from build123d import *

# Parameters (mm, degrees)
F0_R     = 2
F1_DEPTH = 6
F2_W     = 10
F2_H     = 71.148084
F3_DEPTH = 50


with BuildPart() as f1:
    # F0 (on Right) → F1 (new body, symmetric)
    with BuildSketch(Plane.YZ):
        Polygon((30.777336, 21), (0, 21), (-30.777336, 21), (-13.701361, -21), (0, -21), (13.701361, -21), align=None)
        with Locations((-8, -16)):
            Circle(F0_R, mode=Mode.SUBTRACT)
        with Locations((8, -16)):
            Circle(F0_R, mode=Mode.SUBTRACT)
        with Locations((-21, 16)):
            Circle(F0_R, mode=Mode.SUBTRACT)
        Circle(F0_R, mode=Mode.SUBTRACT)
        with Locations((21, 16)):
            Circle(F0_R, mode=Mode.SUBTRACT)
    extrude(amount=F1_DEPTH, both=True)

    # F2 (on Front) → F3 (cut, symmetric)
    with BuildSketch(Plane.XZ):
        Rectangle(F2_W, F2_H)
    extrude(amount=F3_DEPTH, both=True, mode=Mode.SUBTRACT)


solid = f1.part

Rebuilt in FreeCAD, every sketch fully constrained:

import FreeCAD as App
import Part
import Sketcher

V = App.Vector

doc = App.newDocument("Part")
body = doc.addObject("PartDesign::Body", "Body")
body.AllowCompound = True

# Sketch on YZ plane
sketch1 = doc.addObject("Sketcher::SketchObject", "Sketch")
body.addObject(sketch1)
sketch1.AttachmentSupport = (doc.YZ_Plane, [""])
sketch1.MapMode = "FlatFace"
sketch1.addGeometry(Part.LineSegment(V(30.8, 21, 0), V(-30.8, 21, 0)), False)
sketch1.addGeometry(Part.LineSegment(V(-30.8, 21, 0), V(-13.7, -21, 0)), False)
sketch1.addGeometry(Part.LineSegment(V(-13.7, -21, 0), V(13.7, -21, 0)), False)
sketch1.addGeometry(Part.LineSegment(V(13.7, -21, 0), V(30.8, 21, 0)), False)
sketch1.addGeometry(Part.Circle(V(-8, -16, 0), V(0, 0, 1), 2), False)
sketch1.addGeometry(Part.Circle(V(8, -16, 0), V(0, 0, 1), 2), False)
sketch1.addGeometry(Part.Circle(V(-21, 16, 0), V(0, 0, 1), 2), False)
sketch1.addGeometry(Part.Circle(V(0, 0, 0), V(0, 0, 1), 2), False)
sketch1.addGeometry(Part.Circle(V(21, 16, 0), V(0, 0, 1), 2), False)
sketch1.addConstraint(Sketcher.Constraint("Coincident", 0, 2, 1, 1))
sketch1.addConstraint(Sketcher.Constraint("Coincident", 1, 2, 2, 1))
sketch1.addConstraint(Sketcher.Constraint("Coincident", 2, 2, 3, 1))
sketch1.addConstraint(Sketcher.Constraint("Coincident", 3, 2, 0, 1))
sketch1.addConstraint(Sketcher.Constraint("Horizontal", 0))
sketch1.addConstraint(Sketcher.Constraint("Horizontal", 2))
sketch1.addConstraint(Sketcher.Constraint("Coincident", 7, 3, -1, 1))
sketch1.addConstraint(Sketcher.Constraint("Equal", 4, 5))
sketch1.addConstraint(Sketcher.Constraint("Equal", 5, 6))
sketch1.addConstraint(Sketcher.Constraint("Equal", 6, 7))
sketch1.addConstraint(Sketcher.Constraint("Equal", 7, 8))
sketch1.addConstraint(Sketcher.Constraint("Symmetric", 4, 3, 5, 3, -2))
sketch1.addConstraint(Sketcher.Constraint("Symmetric", 6, 3, 8, 3, -2))
sketch1.addConstraint(Sketcher.Constraint("Equal", 1, 3))
sketch1.addConstraint(Sketcher.Constraint("Diameter", 4, 4.0))
sketch1.addConstraint(Sketcher.Constraint("DistanceX", 4, 3, -1, 1, 8.0))
sketch1.addConstraint(Sketcher.Constraint("DistanceY", 4, 3, -1, 1, 16.0))
sketch1.addConstraint(Sketcher.Constraint("DistanceX", 6, 3, -1, 1, 21.0))
sketch1.addConstraint(Sketcher.Constraint("DistanceY", -1, 1, 6, 3, 16.0))
sketch1.addConstraint(Sketcher.Constraint("DistanceY", -1, 1, 0, 2, 21.0))
sketch1.addConstraint(Sketcher.Constraint("DistanceY", 1, 2, -1, 1, 21.0))
sketch1.addConstraint(Sketcher.Constraint("DistanceX", 0, 2, 0, 1, 61.554672))
sketch1.addConstraint(Sketcher.Constraint("DistanceX", 2, 1, 2, 2, 27.402722))
sketch1.addConstraint(Sketcher.Constraint("DistanceX", 1, 2, -1, 1, 13.701361))
pad1 = doc.addObject("PartDesign::Pad", "Pad")
body.addObject(pad1)
pad1.Profile = sketch1
pad1.Length = 12
pad1.Midplane = True

# Sketch on XZ plane
sketch2 = doc.addObject("Sketcher::SketchObject", "Sketch001")
body.addObject(sketch2)
sketch2.AttachmentSupport = (doc.XZ_Plane, [""])
sketch2.MapMode = "FlatFace"
sketch2.addGeometry(Part.LineSegment(V(-5, 36, 0), V(-5, -36, 0)), False)
sketch2.addGeometry(Part.LineSegment(V(-5, -36, 0), V(5, -36, 0)), False)
sketch2.addGeometry(Part.LineSegment(V(5, -36, 0), V(5, 36, 0)), False)
sketch2.addGeometry(Part.LineSegment(V(5, 36, 0), V(-5, 36, 0)), False)
sketch2.addConstraint(Sketcher.Constraint("Coincident", 0, 2, 1, 1))
sketch2.addConstraint(Sketcher.Constraint("Coincident", 1, 2, 2, 1))
sketch2.addConstraint(Sketcher.Constraint("Coincident", 2, 2, 3, 1))
sketch2.addConstraint(Sketcher.Constraint("Coincident", 3, 2, 0, 1))
sketch2.addConstraint(Sketcher.Constraint("Vertical", 0))
sketch2.addConstraint(Sketcher.Constraint("Horizontal", 1))
sketch2.addConstraint(Sketcher.Constraint("Vertical", 2))
sketch2.addConstraint(Sketcher.Constraint("Horizontal", 3))
sketch2.addConstraint(Sketcher.Constraint("Symmetric", 0, 2, 2, 2, -1, 1))
sketch2.addConstraint(Sketcher.Constraint("DistanceX", 1, 1, 1, 2, 10.0))
sketch2.addConstraint(Sketcher.Constraint("DistanceY", 0, 2, 0, 1, 71.148084))
pocket1 = doc.addObject("PartDesign::Pocket", "Pocket")
body.addObject(pocket1)
pocket1.Profile = sketch2
pocket1.Length = 100
pocket1.Midplane = True

doc.recompute()
